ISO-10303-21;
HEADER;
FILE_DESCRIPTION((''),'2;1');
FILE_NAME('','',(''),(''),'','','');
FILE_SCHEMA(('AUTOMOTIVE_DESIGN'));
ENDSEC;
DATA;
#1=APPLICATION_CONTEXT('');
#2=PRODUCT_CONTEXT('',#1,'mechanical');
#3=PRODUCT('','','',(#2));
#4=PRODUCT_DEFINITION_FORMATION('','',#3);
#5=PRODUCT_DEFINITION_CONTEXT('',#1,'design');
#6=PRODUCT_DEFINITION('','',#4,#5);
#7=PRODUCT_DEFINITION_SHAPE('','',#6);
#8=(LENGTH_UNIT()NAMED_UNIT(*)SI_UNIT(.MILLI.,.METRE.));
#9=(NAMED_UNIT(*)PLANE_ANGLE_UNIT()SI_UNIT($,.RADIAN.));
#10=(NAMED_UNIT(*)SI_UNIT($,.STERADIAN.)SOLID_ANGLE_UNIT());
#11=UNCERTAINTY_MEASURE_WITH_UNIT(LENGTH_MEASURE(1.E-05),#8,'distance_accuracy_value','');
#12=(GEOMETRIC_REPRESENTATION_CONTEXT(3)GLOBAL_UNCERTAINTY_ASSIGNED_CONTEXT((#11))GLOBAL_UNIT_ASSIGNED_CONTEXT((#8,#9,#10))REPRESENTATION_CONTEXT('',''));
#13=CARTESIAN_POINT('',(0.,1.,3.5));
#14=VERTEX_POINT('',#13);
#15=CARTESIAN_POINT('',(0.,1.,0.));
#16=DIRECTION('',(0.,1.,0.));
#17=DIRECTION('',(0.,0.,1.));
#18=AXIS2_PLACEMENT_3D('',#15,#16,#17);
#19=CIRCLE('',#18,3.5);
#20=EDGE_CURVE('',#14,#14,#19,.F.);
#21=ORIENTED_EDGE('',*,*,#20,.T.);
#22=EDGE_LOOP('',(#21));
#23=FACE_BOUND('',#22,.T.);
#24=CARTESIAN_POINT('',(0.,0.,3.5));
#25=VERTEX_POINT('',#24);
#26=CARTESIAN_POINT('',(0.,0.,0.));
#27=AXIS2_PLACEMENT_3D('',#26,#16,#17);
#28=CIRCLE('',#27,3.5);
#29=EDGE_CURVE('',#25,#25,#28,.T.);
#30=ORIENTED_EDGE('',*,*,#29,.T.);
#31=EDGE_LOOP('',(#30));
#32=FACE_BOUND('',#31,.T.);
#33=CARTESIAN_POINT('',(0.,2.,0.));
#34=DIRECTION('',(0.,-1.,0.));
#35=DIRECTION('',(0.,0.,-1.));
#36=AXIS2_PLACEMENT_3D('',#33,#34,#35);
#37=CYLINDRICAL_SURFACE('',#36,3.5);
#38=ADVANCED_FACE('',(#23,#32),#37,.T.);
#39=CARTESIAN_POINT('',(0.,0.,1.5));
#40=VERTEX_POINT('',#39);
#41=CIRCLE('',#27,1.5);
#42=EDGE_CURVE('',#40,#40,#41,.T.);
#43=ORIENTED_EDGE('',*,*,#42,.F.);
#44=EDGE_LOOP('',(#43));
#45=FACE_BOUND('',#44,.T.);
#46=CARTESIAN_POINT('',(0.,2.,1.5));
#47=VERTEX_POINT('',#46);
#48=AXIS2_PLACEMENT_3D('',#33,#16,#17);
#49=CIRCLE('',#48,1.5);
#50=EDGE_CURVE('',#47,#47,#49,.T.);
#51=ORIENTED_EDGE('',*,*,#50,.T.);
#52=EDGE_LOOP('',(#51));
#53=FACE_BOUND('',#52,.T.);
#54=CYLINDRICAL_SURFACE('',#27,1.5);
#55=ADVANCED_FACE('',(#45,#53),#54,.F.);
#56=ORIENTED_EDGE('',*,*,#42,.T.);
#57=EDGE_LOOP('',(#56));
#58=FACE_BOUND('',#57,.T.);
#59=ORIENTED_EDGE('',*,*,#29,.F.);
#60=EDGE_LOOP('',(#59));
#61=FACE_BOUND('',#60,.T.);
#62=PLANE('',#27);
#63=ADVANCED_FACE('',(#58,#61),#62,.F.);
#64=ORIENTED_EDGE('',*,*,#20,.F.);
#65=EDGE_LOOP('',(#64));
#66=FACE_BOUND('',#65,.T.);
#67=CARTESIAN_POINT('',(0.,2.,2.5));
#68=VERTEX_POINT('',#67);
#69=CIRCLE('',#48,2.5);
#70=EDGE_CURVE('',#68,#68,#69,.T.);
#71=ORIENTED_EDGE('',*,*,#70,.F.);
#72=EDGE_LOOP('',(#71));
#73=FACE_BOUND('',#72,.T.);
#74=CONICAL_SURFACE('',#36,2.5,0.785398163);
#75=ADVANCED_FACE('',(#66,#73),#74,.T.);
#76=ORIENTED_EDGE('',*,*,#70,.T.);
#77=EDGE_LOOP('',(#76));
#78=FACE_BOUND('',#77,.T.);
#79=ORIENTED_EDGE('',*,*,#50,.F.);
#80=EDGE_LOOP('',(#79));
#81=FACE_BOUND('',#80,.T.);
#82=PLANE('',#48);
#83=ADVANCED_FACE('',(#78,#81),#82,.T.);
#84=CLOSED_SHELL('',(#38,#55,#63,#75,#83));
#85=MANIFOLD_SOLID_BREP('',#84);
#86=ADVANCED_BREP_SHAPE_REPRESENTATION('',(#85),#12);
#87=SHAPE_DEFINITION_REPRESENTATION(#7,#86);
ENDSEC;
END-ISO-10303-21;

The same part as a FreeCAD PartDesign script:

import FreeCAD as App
import Part
import Sketcher
Q = App.Units.Quantity


def edges_at(feature, points):
    """Names of the edges that pass closest to the given points."""
    edges = feature.Shape.Edges
    near = lambda p: min(range(len(edges)), key=lambda i: edges[i].distToShape(Part.Vertex(*p))[0])
    return sorted({f"Edge{near(p) + 1}" for p in points})

doc = App.newDocument("Part")
body = doc.addObject("PartDesign::Body", "Body")

sketch1 = doc.addObject("Sketcher::SketchObject", "Sketch")
body.addObject(sketch1)
sketch1.AttachmentSupport = (doc.XZ_Plane, [""])
sketch1.MapMode = "FlatFace"
sketch1.addGeometry(Part.Circle(App.Vector(0, 0, 0), App.Vector(0, 0, 1), 3.5), False)
sketch1.addConstraint([
    Sketcher.Constraint("Coincident", 0, 3, -1, 1),
    Sketcher.Constraint("Diameter", 0, Q("7 mm")),
])
pad1 = doc.addObject("PartDesign::Pad", "Pad")
body.addObject(pad1)
pad1.Profile = sketch1
pad1.Length = 2
pad1.Reversed = True

sketch2 = doc.addObject("Sketcher::SketchObject", "Sketch001")
body.addObject(sketch2)
sketch2.AttachmentSupport = (doc.XZ_Plane, [""])
sketch2.MapMode = "FlatFace"
sketch2.AttachmentOffset = App.Placement(App.Vector(0, 0, -2), App.Rotation())
sketch2.addGeometry(Part.Circle(App.Vector(0, 0, 0), App.Vector(0, 0, 1), 1.5), False)
sketch2.addConstraint([
    Sketcher.Constraint("Coincident", 0, 3, -1, 1),
    Sketcher.Constraint("Diameter", 0, Q("3 mm")),
])
pocket1 = doc.addObject("PartDesign::Pocket", "Pocket")
body.addObject(pocket1)
pocket1.Profile = sketch2
pocket1.Length = 2
pocket1.Reversed = True
doc.recompute()

chamfer = doc.addObject("PartDesign::Chamfer", "Chamfer")
body.addObject(chamfer)
chamfer.Base = (pocket1, edges_at(pocket1, [(-3.5, 2, 0)]))
chamfer.Size = 1

doc.recompute()
